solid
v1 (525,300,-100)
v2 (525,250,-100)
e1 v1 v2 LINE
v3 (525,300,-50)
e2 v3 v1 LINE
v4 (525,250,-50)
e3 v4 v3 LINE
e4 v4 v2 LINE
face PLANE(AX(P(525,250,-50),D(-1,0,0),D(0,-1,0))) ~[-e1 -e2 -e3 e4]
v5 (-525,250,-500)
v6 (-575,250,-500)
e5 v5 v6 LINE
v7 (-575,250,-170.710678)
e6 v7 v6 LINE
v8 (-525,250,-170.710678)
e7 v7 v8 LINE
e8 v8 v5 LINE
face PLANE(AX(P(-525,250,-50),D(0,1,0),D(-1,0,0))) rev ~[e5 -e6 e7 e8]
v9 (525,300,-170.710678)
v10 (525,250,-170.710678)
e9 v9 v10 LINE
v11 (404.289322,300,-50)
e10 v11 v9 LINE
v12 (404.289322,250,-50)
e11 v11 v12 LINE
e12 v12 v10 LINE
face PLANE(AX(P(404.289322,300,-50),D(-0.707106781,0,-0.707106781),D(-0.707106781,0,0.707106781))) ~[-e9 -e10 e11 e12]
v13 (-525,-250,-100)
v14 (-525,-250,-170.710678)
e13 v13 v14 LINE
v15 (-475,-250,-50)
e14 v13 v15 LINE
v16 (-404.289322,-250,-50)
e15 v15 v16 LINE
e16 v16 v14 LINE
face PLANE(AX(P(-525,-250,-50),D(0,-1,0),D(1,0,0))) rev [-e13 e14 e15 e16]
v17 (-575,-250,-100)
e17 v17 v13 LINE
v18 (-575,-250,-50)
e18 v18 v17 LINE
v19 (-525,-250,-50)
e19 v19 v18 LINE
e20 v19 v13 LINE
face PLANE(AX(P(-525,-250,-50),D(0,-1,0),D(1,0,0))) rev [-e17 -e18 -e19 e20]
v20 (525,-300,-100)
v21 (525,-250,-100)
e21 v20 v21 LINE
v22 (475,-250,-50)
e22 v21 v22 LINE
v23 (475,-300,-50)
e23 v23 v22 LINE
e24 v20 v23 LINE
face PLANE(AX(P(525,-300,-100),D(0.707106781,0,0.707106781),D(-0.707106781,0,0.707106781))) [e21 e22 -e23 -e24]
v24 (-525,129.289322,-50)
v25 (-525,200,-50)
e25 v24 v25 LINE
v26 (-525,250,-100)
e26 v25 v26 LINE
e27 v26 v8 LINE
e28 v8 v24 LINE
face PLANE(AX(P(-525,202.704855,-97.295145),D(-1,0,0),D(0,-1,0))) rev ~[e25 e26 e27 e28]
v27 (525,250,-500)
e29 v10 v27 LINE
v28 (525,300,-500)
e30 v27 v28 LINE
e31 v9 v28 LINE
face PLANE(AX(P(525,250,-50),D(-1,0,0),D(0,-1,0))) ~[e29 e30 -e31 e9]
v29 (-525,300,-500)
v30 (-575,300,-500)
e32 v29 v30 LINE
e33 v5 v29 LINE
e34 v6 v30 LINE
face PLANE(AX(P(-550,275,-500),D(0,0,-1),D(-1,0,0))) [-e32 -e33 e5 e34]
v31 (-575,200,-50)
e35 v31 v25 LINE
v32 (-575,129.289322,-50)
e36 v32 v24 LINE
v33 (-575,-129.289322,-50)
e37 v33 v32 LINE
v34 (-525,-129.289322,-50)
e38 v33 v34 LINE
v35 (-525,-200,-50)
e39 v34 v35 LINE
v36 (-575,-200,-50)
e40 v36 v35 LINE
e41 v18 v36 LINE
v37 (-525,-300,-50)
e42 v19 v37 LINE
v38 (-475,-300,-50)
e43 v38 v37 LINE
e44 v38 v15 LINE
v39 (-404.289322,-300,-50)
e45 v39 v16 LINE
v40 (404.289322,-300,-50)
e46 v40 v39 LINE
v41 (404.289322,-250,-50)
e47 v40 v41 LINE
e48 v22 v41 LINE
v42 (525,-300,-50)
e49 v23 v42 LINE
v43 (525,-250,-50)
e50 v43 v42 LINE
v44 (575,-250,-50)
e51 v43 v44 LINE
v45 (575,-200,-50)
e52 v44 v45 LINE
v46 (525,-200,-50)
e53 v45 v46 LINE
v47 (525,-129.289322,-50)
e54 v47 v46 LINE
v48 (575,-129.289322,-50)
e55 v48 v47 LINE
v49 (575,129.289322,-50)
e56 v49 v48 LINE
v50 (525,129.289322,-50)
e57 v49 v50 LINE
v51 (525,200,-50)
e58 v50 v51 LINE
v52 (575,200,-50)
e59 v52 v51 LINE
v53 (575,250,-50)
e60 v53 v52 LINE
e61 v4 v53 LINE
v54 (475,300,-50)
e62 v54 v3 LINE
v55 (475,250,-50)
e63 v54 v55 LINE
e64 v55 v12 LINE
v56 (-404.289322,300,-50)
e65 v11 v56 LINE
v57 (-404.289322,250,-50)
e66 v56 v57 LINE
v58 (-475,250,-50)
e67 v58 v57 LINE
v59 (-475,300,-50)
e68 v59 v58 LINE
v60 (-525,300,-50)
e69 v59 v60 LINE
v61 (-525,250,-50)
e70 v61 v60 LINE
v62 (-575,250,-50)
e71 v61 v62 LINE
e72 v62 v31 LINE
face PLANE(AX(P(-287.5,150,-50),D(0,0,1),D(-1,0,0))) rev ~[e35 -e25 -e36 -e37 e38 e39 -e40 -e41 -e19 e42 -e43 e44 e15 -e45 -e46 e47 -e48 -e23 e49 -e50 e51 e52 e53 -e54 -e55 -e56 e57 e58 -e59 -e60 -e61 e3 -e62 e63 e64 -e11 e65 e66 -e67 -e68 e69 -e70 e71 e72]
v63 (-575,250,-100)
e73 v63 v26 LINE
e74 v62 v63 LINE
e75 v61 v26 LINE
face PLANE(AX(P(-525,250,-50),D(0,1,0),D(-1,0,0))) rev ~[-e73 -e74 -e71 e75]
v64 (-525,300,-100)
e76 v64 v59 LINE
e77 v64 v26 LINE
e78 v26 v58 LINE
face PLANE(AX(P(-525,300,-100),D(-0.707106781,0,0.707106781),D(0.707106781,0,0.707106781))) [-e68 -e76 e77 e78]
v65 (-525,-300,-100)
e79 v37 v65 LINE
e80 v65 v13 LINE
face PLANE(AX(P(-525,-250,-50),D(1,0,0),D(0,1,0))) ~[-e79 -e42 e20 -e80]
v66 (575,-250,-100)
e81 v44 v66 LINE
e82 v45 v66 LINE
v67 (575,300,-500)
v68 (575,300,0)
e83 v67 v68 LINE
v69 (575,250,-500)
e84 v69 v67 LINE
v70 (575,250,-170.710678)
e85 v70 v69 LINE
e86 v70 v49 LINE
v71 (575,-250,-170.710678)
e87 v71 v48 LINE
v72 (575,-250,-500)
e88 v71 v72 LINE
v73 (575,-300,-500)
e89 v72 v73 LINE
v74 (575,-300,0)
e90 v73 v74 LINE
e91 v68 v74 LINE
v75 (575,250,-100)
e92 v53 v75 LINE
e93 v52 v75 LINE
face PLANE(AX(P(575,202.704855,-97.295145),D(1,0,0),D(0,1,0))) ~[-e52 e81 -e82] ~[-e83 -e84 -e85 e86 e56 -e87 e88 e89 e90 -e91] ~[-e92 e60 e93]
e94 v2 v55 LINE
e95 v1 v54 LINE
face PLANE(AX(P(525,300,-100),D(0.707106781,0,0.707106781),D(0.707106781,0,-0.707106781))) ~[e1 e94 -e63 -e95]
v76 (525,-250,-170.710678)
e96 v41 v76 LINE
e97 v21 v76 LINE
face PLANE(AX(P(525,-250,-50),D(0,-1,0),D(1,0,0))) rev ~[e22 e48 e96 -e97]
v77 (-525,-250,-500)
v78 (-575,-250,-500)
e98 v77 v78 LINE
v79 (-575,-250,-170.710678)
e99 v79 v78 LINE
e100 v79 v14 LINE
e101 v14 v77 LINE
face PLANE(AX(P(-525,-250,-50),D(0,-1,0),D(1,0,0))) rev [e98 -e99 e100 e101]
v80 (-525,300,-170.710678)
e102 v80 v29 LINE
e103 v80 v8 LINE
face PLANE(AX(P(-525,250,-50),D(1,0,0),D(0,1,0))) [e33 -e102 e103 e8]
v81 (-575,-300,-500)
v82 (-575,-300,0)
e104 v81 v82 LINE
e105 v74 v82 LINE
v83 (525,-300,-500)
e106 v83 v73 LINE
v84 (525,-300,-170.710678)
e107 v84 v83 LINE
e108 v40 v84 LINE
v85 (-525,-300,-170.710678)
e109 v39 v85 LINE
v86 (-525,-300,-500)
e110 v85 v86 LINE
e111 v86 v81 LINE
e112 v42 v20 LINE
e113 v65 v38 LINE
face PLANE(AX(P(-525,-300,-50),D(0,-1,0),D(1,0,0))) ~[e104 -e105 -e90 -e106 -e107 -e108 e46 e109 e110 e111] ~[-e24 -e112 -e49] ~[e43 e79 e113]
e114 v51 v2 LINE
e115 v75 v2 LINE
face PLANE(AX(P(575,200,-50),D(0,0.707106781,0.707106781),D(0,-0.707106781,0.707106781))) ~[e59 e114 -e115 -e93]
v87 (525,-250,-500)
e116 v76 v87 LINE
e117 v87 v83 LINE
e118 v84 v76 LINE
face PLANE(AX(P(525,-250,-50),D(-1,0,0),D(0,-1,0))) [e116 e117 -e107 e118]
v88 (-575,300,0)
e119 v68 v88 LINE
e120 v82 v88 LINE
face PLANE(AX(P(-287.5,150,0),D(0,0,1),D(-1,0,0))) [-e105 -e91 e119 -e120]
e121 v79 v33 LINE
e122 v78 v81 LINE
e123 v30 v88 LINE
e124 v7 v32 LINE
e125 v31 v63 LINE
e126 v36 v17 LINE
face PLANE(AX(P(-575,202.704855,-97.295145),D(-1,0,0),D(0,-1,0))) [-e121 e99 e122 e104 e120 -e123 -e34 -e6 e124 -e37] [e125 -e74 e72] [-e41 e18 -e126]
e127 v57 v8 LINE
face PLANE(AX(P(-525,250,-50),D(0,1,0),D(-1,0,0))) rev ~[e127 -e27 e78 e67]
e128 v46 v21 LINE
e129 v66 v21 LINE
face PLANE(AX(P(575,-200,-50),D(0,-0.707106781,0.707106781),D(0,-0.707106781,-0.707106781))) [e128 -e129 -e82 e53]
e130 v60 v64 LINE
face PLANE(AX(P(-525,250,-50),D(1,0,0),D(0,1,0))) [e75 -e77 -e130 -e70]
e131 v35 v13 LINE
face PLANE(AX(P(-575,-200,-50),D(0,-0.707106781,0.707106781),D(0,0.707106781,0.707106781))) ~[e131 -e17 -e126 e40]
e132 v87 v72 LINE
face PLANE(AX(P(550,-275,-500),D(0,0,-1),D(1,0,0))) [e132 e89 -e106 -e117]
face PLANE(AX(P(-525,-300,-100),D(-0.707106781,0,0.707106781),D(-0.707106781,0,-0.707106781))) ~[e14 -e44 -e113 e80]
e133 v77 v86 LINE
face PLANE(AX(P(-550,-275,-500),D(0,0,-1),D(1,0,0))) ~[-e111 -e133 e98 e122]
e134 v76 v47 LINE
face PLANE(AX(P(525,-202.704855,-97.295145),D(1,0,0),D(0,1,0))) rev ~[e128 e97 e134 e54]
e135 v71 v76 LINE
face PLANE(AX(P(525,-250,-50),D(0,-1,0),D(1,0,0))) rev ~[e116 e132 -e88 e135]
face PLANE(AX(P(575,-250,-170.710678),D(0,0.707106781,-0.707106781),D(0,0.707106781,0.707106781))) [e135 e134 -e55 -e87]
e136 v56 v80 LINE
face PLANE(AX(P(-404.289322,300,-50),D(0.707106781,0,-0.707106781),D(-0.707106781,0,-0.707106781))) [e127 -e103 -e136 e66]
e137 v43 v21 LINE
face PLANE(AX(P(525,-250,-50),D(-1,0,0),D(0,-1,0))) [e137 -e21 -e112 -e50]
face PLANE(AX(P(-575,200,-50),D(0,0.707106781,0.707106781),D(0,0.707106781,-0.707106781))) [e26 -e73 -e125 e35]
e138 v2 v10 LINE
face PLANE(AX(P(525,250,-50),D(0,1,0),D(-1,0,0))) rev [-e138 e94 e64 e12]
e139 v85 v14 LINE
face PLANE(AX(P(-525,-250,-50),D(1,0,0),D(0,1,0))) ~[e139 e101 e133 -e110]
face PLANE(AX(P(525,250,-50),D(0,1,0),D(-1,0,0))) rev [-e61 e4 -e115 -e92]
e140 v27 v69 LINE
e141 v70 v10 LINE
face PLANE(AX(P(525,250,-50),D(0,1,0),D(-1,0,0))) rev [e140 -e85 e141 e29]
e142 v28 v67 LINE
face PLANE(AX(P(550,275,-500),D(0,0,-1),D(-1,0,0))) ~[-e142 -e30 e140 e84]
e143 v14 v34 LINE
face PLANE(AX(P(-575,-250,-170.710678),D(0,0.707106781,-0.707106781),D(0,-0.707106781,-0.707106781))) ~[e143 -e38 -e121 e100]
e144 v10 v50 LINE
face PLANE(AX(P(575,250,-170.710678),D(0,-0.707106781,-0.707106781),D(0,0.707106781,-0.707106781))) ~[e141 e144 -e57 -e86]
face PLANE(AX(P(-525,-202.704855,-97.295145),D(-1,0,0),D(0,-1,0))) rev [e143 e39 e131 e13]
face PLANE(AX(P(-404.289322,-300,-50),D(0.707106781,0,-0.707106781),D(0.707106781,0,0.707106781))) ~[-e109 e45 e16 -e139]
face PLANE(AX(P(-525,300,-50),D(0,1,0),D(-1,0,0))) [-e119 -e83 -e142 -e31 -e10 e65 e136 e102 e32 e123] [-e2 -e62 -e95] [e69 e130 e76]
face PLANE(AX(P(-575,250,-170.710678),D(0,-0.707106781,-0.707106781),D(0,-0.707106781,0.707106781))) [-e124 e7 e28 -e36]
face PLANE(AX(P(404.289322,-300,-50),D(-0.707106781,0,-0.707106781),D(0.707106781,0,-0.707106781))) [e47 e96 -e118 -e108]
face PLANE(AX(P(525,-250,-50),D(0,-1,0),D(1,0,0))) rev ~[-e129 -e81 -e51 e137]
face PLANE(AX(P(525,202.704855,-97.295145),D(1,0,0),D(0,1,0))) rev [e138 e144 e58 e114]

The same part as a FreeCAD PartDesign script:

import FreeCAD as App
import Part
import Sketcher
from FreeCAD import Vector

doc = App.newDocument("Part")
body = doc.addObject("PartDesign::Body", "Body")

# Sketch on XY plane
sketch1 = body.newObject("Sketcher::SketchObject", "Sketch")
sketch1.AttachmentSupport = (doc.getObject("XY_Plane"), [""])
sketch1.MapMode = "FlatFace"
sketch1.addGeometry([
    Part.LineSegment(Vector(0, 0, 0), Vector(0, -300, 0)),
    Part.LineSegment(Vector(0, -300, 0), Vector(575, -300, 0)),
    Part.LineSegment(Vector(575, -300, 0), Vector(575, 0, 0)),
    Part.LineSegment(Vector(575, 0, 0), Vector(0, 0, 0)),
], False)
sketch1.addConstraint([
    Sketcher.Constraint("Coincident", 0, 2, 1, 1),
    Sketcher.Constraint("Coincident", 1, 2, 2, 1),
    Sketcher.Constraint("Coincident", 2, 2, 3, 1),
    Sketcher.Constraint("Coincident", 3, 2, 0, 1),
    Sketcher.Constraint("Vertical", 0),
    Sketcher.Constraint("Horizontal", 1),
    Sketcher.Constraint("Vertical", 2),
    Sketcher.Constraint("Horizontal", 3),
    Sketcher.Constraint("Coincident", 3, 2, -1, 1),
    Sketcher.Constraint("DistanceX", 1, 1, 1, 2, 575.0),
    Sketcher.Constraint("DistanceY", 0, 2, 0, 1, 300.0),
])
pad1 = body.newObject("PartDesign::Pad", "Pad")
pad1.Profile = sketch1
pad1.Length = 50
pad1.Reversed = True

# Sketch on XY plane
sketch2 = body.newObject("Sketcher::SketchObject", "Sketch001")
sketch2.AttachmentSupport = (doc.getObject("XY_Plane"), [""])
sketch2.MapMode = "FlatFace"
sketch2.AttachmentOffset = App.Placement(Vector(0, 0, -50), App.Rotation())
sketch2.addGeometry([
    Part.LineSegment(Vector(525, -300, 0), Vector(525, -250, 0)),
    Part.LineSegment(Vector(525, -250, 0), Vector(575, -250, 0)),
    Part.LineSegment(Vector(575, -250, 0), Vector(575, -300, 0)),
    Part.LineSegment(Vector(575, -300, 0), Vector(525, -300, 0)),
], False)
sketch2.addConstraint([
    Sketcher.Constraint("Coincident", 0, 2, 1, 1),
    Sketcher.Constraint("Coincident", 1, 2, 2, 1),
    Sketcher.Constraint("Coincident", 2, 2, 3, 1),
    Sketcher.Constraint("Coincident", 3, 2, 0, 1),
    Sketcher.Constraint("Vertical", 0),
    Sketcher.Constraint("Horizontal", 1),
    Sketcher.Constraint("Vertical", 2),
    Sketcher.Constraint("Horizontal", 3),
    Sketcher.Constraint("Equal", 3, 0),
    Sketcher.Constraint("DistanceX", 1, 1, 1, 2, 50.0),
    Sketcher.Constraint("DistanceX", -1, 1, 0, 2, 525.0),
    Sketcher.Constraint("DistanceY", 0, 2, -1, 1, 250.0),
])
pad2 = body.newObject("PartDesign::Pad", "Pad001")
pad2.Profile = sketch2
pad2.Length = 450
pad2.Reversed = True

# Sketch on XZ plane
sketch3 = body.newObject("Sketcher::SketchObject", "Sketch002")
sketch3.AttachmentSupport = (doc.getObject("XZ_Plane"), [""])
sketch3.MapMode = "FlatFace"
sketch3.AttachmentOffset = App.Placement(Vector(0, 0, 300), App.Rotation())
sketch3.addGeometry([
    Part.LineSegment(Vector(525, -171, 0), Vector(525, -100, 0)),
    Part.LineSegment(Vector(525, -100, 0), Vector(475, -50, 0)),
    Part.LineSegment(Vector(475, -50, 0), Vector(404, -50, 0)),
    Part.LineSegment(Vector(404, -50, 0), Vector(525, -171, 0)),
], False)
sketch3.addConstraint([
    Sketcher.Constraint("Coincident", 0, 2, 1, 1),
    Sketcher.Constraint("Coincident", 1, 2, 2, 1),
    Sketcher.Constraint("Coincident", 2, 2, 3, 1),
    Sketcher.Constraint("Coincident", 3, 2, 0, 1),
    Sketcher.Constraint("Vertical", 0),
    Sketcher.Constraint("Horizontal", 2),
    Sketcher.Constraint("Parallel", 1, 3),
    Sketcher.Constraint("Equal", 2, 0),
    Sketcher.Constraint("DistanceX", -1, 1, 0, 2, 525.0),
    Sketcher.Constraint("DistanceY", 0, 2, -1, 1, 100.0),
    Sketcher.Constraint("DistanceX", -1, 1, 1, 2, 475.0),
    Sketcher.Constraint("DistanceY", 0, 1, 0, 2, 70.710678),
])
pad3 = body.newObject("PartDesign::Pad", "Pad002")
pad3.Profile = sketch3
pad3.Length = 50
pad3.Reversed = True

# Sketch on YZ plane
sketch4 = body.newObject("Sketcher::SketchObject", "Sketch003")
sketch4.AttachmentSupport = (doc.getObject("YZ_Plane"), [""])
sketch4.MapMode = "FlatFace"
sketch4.AttachmentOffset = App.Placement(Vector(0, 0, 575), App.Rotation())
sketch4.addGeometry([
    Part.LineSegment(Vector(-200, -50, 0), Vector(-250, -100, 0)),
    Part.LineSegment(Vector(-250, -100, 0), Vector(-250, -171, 0)),
    Part.LineSegment(Vector(-250, -171, 0), Vector(-129, -50, 0)),
    Part.LineSegment(Vector(-129, -50, 0), Vector(-200, -50, 0)),
], False)
sketch4.addConstraint([
    Sketcher.Constraint("Coincident", 0, 2, 1, 1),
    Sketcher.Constraint("Coincident", 1, 2, 2, 1),
    Sketcher.Constraint("Coincident", 2, 2, 3, 1),
    Sketcher.Constraint("Coincident", 3, 2, 0, 1),
    Sketcher.Constraint("Vertical", 1),
    Sketcher.Constraint("Horizontal", 3),
    Sketcher.Constraint("Parallel", 0, 2),
    Sketcher.Constraint("Equal", 3, 1),
    Sketcher.Constraint("DistanceX", 0, 2, -1, 1, 250.0),
    Sketcher.Constraint("DistanceY", 0, 2, -1, 1, 100.0),
    Sketcher.Constraint("DistanceY", 2, 2, -1, 1, 50.0),
    Sketcher.Constraint("DistanceX", 3, 2, 3, 1, 70.710678),
])
pad4 = body.newObject("PartDesign::Pad", "Pad003")
pad4.Profile = sketch4
pad4.Length = 50
pad4.Reversed = True
body2 = doc.addObject("PartDesign::Body", "Body001")
doc.recompute()

body2.BaseFeature = body
doc.recompute()

mirroring = doc.addObject("Part::Mirroring", "Mirroring")
mirroring.Source = body
mirroring.Base = Vector(0, 0, 0)
mirroring.Normal = Vector(1, 0, 0)
body3 = doc.addObject("PartDesign::Body", "Body002")
body3.BaseFeature = mirroring
boolean = body2.newObject("PartDesign::Boolean", "Boolean")
boolean.Type = "Fuse"
boolean.addObjects([body3])
doc.recompute()
body4 = doc.addObject("PartDesign::Body", "Body003")
doc.recompute()

body4.BaseFeature = body2
doc.recompute()

mirroring2 = doc.addObject("Part::Mirroring", "Mirroring001")
mirroring2.Source = body2
mirroring2.Base = Vector(0, 0, 0)
mirroring2.Normal = Vector(0, -1, 0)
body5 = doc.addObject("PartDesign::Body", "Body004")
body5.BaseFeature = mirroring2
boolean2 = body4.newObject("PartDesign::Boolean", "Boolean001")
boolean2.Type = "Fuse"
boolean2.addObjects([body5])
doc.recompute()
mirroring.Visibility = False
mirroring2.Visibility = False

doc.recompute()
